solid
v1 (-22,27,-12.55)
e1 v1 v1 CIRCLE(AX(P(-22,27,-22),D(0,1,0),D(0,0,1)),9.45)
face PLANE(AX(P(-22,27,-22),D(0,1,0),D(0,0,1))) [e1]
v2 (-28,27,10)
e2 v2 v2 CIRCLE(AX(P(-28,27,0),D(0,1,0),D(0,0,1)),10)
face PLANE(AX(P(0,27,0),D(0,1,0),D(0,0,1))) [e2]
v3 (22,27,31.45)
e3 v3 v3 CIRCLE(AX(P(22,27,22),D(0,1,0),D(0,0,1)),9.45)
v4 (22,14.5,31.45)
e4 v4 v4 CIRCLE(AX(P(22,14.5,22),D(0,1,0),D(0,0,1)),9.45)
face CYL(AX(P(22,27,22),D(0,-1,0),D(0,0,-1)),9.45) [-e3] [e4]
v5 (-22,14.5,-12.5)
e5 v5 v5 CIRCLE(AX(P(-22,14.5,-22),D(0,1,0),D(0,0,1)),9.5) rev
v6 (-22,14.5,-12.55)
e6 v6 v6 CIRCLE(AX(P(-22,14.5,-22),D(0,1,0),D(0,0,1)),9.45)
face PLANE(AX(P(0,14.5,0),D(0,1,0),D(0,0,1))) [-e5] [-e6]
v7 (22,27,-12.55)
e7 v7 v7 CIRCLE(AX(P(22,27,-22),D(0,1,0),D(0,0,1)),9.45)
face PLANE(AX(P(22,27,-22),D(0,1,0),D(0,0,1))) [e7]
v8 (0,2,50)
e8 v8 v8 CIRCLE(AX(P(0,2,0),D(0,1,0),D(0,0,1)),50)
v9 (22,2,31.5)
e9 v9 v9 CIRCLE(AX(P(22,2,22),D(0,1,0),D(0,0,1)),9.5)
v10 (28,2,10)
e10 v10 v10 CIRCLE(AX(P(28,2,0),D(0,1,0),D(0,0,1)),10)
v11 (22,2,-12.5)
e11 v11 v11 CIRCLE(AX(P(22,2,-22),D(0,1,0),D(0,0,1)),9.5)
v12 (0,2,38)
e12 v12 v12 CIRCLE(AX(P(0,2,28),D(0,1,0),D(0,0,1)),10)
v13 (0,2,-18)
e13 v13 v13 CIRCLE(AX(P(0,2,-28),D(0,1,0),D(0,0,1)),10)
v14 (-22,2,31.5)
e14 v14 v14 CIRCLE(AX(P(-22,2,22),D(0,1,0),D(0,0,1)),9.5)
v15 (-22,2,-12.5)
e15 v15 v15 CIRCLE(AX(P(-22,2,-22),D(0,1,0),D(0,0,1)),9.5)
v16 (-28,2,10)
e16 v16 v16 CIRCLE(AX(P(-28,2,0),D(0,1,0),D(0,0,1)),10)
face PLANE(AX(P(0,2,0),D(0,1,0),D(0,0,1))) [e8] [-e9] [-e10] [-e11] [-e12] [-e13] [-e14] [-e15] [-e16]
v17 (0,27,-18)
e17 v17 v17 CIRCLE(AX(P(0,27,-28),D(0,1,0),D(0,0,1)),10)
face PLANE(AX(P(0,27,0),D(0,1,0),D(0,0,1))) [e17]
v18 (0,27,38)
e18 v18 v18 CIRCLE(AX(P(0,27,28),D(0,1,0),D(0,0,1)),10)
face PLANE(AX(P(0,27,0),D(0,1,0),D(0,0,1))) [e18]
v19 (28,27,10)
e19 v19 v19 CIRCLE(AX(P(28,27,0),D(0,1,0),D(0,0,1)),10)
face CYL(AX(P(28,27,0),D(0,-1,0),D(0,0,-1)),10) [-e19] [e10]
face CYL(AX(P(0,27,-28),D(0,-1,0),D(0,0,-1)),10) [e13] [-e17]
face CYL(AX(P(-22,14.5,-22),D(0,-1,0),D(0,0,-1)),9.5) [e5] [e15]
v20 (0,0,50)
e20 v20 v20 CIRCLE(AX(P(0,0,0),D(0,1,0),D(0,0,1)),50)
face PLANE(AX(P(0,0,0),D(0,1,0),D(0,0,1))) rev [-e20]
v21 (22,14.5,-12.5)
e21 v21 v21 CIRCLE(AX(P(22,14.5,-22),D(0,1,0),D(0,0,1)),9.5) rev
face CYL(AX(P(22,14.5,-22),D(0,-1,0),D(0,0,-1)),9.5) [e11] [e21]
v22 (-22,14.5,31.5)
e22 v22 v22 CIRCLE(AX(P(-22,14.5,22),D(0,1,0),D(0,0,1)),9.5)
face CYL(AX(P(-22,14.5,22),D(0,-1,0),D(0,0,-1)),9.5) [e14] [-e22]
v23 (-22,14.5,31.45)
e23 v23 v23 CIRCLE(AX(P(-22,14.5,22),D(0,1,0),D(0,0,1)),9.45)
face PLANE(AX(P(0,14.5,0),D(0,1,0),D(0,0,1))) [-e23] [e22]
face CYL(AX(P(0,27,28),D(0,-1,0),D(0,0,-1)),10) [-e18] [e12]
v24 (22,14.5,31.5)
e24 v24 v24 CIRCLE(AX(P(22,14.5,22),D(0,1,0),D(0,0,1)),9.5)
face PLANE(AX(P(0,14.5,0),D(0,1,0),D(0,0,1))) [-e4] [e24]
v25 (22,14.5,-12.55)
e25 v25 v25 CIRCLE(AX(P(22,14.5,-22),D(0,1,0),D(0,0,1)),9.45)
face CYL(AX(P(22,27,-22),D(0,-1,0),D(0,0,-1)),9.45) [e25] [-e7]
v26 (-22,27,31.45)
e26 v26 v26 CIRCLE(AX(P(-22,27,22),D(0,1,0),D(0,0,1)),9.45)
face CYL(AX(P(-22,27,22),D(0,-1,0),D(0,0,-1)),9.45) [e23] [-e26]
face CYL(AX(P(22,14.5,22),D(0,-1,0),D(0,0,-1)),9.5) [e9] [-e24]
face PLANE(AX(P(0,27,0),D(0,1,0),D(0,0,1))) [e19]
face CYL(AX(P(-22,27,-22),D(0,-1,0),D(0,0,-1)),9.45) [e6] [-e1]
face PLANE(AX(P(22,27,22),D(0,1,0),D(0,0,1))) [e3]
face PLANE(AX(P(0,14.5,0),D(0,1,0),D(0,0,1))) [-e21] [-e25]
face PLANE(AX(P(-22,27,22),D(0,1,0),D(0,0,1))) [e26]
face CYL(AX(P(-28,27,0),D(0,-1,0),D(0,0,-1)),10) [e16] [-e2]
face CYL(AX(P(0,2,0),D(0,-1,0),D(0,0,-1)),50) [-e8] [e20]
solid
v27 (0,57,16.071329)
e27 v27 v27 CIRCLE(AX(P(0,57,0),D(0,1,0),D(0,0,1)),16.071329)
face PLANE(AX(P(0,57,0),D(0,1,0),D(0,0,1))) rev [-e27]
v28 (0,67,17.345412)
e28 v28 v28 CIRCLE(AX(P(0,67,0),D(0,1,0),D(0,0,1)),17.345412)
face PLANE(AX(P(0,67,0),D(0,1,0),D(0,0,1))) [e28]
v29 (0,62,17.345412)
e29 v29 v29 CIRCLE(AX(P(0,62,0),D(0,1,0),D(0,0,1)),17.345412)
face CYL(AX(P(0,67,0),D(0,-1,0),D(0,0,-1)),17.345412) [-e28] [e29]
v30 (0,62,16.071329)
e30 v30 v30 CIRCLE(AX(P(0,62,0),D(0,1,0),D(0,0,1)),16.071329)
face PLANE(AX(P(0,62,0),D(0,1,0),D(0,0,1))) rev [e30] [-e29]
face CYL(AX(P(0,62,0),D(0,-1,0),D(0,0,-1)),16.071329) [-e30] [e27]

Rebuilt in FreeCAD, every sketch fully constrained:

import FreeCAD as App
import Part
import Sketcher
from FreeCAD import Vector
Q = App.Units.Quantity

doc = App.newDocument("Part")
params = doc.addObject("Spreadsheet::Sheet", "Params")
for row, (alias, value) in enumerate([
    ("sketch1_diameter", "100 mm"),
    ("pad1_length", "2 mm"),
    ("sketch2_diameter", "20 mm"),
    ("pad2_length", "25 mm"),
    ("sketch3_diameter", "19 mm"),
    ("pad3_length", "12.5 mm"),
    ("sketch4_diameter", "18.9 mm"),
    ("pad4_length", "12.5 mm"),
    ("pad5_length", "5 mm"),
    ("pad6_length", "5 mm"),
], start=1):
    params.set(f"A{row}", alias)
    params.set(f"B{row}", "=" + value)
    params.setAlias(f"B{row}", alias)

body = doc.addObject("PartDesign::Body", "Body")

# Sketch on XZ plane
sketch1 = body.newObject("Sketcher::SketchObject", "Sketch")
sketch1.AttachmentSupport = (doc.getObject("XZ_Plane"), [""])
sketch1.MapMode = "FlatFace"
sketch1.addGeometry(Part.Circle(Vector(0, 0, 0), Vector(0, 0, 1), 50), False)
sketch1.addConstraint([
    Sketcher.Constraint("Coincident", 0, 3, -1, 1),
    Sketcher.Constraint("Diameter", 0, Q("100 mm")),
])
sketch1.setExpression("Constraints[1]", "Params.sketch1_diameter")
pad1 = body.newObject("PartDesign::Pad", "Pad")
pad1.Profile = sketch1
pad1.setExpression("Length", "Params.pad1_length")
pad1.Reversed = True

# Sketch on XZ plane
sketch2 = body.newObject("Sketcher::SketchObject", "Sketch001")
sketch2.AttachmentSupport = (doc.getObject("XZ_Plane"), [""])
sketch2.MapMode = "FlatFace"
sketch2.AttachmentOffset = App.Placement(Vector(0, 0, -2), App.Rotation())
sketch2.addGeometry([
    Part.Circle(Vector(0, -28, 0), Vector(0, 0, 1), 10),
    Part.Circle(Vector(28, 0, 0), Vector(0, 0, 1), 10),
    Part.Circle(Vector(0, 28, 0), Vector(0, 0, 1), 10),
    Part.Circle(Vector(-28, 0, 0), Vector(0, 0, 1), 10),
], False)
sketch2.addConstraint([
    Sketcher.Constraint("Equal", 0, 1),
    Sketcher.Constraint("Equal", 1, 2),
    Sketcher.Constraint("Equal", 2, 3),
    Sketcher.Constraint("Symmetric", 0, 3, 2, 3, -1, 1),
    Sketcher.Constraint("Symmetric", 1, 3, 3, 3, -1, 1),
    Sketcher.Constraint("PointOnObject", 0, 3, -2),
    Sketcher.Constraint("PointOnObject", 1, 3, -1),
    Sketcher.Constraint("Diameter", 0, Q("20 mm")),
    Sketcher.Constraint("DistanceY", 0, 3, -1, 1, Q("28 mm")),
    Sketcher.Constraint("DistanceX", -1, 1, 1, 3, Q("28 mm")),
])
sketch2.setExpression("Constraints[7]", "Params.sketch2_diameter")
pad2 = body.newObject("PartDesign::Pad", "Pad001")
pad2.Profile = sketch2
pad2.setExpression("Length", "Params.pad2_length")
pad2.Reversed = True

# Sketch on XZ plane
sketch3 = body.newObject("Sketcher::SketchObject", "Sketch002")
sketch3.AttachmentSupport = (doc.getObject("XZ_Plane"), [""])
sketch3.MapMode = "FlatFace"
sketch3.AttachmentOffset = App.Placement(Vector(0, 0, -2), App.Rotation())
sketch3.addGeometry([
    Part.Circle(Vector(22, 22, 0), Vector(0, 0, 1), 9.5),
    Part.Circle(Vector(22, -22, 0), Vector(0, 0, 1), 9.5),
    Part.Circle(Vector(-22, -22, 0), Vector(0, 0, 1), 9.5),
    Part.Circle(Vector(-22, 22, 0), Vector(0, 0, 1), 9.5),
], False)
sketch3.addConstraint([
    Sketcher.Constraint("Equal", 0, 1),
    Sketcher.Constraint("Equal", 1, 2),
    Sketcher.Constraint("Equal", 2, 3),
    Sketcher.Constraint("Symmetric", 0, 3, 2, 3, -1, 1),
    Sketcher.Constraint("Symmetric", 1, 3, 3, 3, -1, 1),
    Sketcher.Constraint("Symmetric", 1, 3, 2, 3, -2),
    Sketcher.Constraint("Diameter", 0, Q("19 mm")),
    Sketcher.Constraint("DistanceX", -1, 1, 0, 3, Q("22 mm")),
    Sketcher.Constraint("DistanceY", -1, 1, 0, 3, Q("22 mm")),
])
sketch3.setExpression("Constraints[6]", "Params.sketch3_diameter")
pad3 = body.newObject("PartDesign::Pad", "Pad002")
pad3.Profile = sketch3
pad3.setExpression("Length", "Params.pad3_length")
pad3.Reversed = True

# Sketch on XZ plane
sketch4 = body.newObject("Sketcher::SketchObject", "Sketch003")
sketch4.AttachmentSupport = (doc.getObject("XZ_Plane"), [""])
sketch4.MapMode = "FlatFace"
sketch4.AttachmentOffset = App.Placement(Vector(0, 0, -14.5), App.Rotation())
sketch4.addGeometry([
    Part.Circle(Vector(-22, 22, 0), Vector(0, 0, 1), 9.45),
    Part.Circle(Vector(22, -22, 0), Vector(0, 0, 1), 9.45),
    Part.Circle(Vector(22, 22, 0), Vector(0, 0, 1), 9.45),
    Part.Circle(Vector(-22, -22, 0), Vector(0, 0, 1), 9.45),
], False)
sketch4.addConstraint([
    Sketcher.Constraint("Equal", 0, 1),
    Sketcher.Constraint("Equal", 1, 2),
    Sketcher.Constraint("Equal", 2, 3),
    Sketcher.Constraint("Symmetric", 0, 3, 1, 3, -1, 1),
    Sketcher.Constraint("Symmetric", 2, 3, 3, 3, -1, 1),
    Sketcher.Constraint("Symmetric", 0, 3, 2, 3, -2),
    Sketcher.Constraint("Diameter", 0, Q("18.9 mm")),
    Sketcher.Constraint("DistanceX", 0, 3, -1, 1, Q("22 mm")),
    Sketcher.Constraint("DistanceY", -1, 1, 0, 3, Q("22 mm")),
])
sketch4.setExpression("Constraints[6]", "Params.sketch4_diameter")
pad4 = body.newObject("PartDesign::Pad", "Pad003")
pad4.Profile = sketch4
pad4.setExpression("Length", "Params.pad4_length")
pad4.Reversed = True
body2 = doc.addObject("PartDesign::Body", "Body001")

# Sketch on XZ plane
sketch5 = body2.newObject("Sketcher::SketchObject", "Sketch004")
sketch5.AttachmentSupport = (doc.getObject("XZ_Plane001"), [""])
sketch5.MapMode = "FlatFace"
sketch5.AttachmentOffset = App.Placement(Vector(0, 0, -57), App.Rotation())
sketch5.addGeometry(Part.Circle(Vector(0, 0, 0), Vector(0, 0, 1), 16.071329), False)
sketch5.addConstraint([
    Sketcher.Constraint("Coincident", 0, 3, -1, 1),
    Sketcher.Constraint("Diameter", 0, Q("32.142659 mm")),
])
pad5 = body2.newObject("PartDesign::Pad", "Pad004")
pad5.Profile = sketch5
pad5.setExpression("Length", "Params.pad5_length")
pad5.Reversed = True

# Sketch on XZ plane
sketch6 = body2.newObject("Sketcher::SketchObject", "Sketch005")
sketch6.AttachmentSupport = (doc.getObject("XZ_Plane001"), [""])
sketch6.MapMode = "FlatFace"
sketch6.AttachmentOffset = App.Placement(Vector(0, 0, -62), App.Rotation())
sketch6.addGeometry(Part.Circle(Vector(0, 0, 0), Vector(0, 0, 1), 17.345412), False)
sketch6.addConstraint([
    Sketcher.Constraint("Coincident", 0, 3, -1, 1),
    Sketcher.Constraint("Diameter", 0, Q("34.690824 mm")),
])
pad6 = body2.newObject("PartDesign::Pad", "Pad005")
pad6.Profile = sketch6
pad6.setExpression("Length", "Params.pad6_length")
pad6.Reversed = True

doc.recompute()
